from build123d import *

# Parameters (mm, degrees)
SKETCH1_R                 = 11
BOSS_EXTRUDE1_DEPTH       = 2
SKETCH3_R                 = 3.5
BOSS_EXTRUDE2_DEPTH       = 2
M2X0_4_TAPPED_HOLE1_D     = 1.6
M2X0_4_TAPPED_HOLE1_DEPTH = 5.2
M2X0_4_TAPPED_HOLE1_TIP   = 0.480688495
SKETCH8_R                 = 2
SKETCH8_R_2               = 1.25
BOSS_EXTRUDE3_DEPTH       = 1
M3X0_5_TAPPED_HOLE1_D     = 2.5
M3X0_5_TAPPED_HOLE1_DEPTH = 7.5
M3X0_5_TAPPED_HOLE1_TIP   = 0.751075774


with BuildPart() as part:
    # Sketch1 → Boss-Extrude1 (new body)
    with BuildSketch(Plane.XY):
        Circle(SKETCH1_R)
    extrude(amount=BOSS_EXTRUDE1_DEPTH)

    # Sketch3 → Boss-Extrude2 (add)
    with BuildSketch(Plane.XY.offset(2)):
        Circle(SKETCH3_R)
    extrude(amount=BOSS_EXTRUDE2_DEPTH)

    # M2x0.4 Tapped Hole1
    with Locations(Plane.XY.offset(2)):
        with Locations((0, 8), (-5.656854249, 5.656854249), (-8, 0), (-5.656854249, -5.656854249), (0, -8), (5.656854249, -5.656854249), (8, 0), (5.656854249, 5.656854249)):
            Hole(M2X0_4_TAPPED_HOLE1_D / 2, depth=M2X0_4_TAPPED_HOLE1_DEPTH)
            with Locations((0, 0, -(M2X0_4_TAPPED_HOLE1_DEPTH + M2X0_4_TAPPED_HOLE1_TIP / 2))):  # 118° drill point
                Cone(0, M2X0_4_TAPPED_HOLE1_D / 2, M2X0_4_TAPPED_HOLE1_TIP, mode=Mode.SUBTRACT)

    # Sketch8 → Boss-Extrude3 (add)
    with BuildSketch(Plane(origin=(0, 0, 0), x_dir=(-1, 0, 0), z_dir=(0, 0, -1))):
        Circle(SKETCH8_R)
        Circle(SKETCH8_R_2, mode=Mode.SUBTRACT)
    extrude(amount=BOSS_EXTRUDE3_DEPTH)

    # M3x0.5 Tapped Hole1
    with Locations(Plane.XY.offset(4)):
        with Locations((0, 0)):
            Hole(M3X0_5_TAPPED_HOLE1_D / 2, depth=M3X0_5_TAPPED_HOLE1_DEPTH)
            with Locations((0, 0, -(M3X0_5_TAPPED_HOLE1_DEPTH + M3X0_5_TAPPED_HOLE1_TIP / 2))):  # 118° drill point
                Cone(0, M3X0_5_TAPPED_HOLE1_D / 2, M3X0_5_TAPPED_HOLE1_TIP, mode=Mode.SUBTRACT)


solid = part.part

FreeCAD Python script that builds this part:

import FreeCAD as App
import Part
import Sketcher
Q = App.Units.Quantity

doc = App.newDocument("Part")
body = doc.addObject("PartDesign::Body", "Body")

# Sketch on XY plane
sketch1 = body.newObject("Sketcher::SketchObject", "Sketch")
sketch1.AttachmentSupport = (doc.getObject("XY_Plane"), [""])
sketch1.MapMode = "FlatFace"
sketch1.addGeometry(Part.Circle(App.Vector(0, 0, 0), App.Vector(0, 0, 1), 11), False)
sketch1.addConstraint([
    Sketcher.Constraint("Coincident", 0, 3, -1, 1),
    Sketcher.Constraint("Diameter", 0, Q("22 mm")),
])
pad1 = body.newObject("PartDesign::Pad", "Pad")
pad1.Profile = sketch1
pad1.Length = 2

# Sketch on XY plane
sketch2 = body.newObject("Sketcher::SketchObject", "Sketch001")
sketch2.AttachmentSupport = (doc.getObject("XY_Plane"), [""])
sketch2.MapMode = "FlatFace"
sketch2.AttachmentOffset = App.Placement(App.Vector(0, 0, 2), App.Rotation())
sketch2.addGeometry(Part.Circle(App.Vector(0, 0, 0), App.Vector(0, 0, 1), 3.5), False)
sketch2.addConstraint([
    Sketcher.Constraint("Coincident", 0, 3, -1, 1),
    Sketcher.Constraint("Diameter", 0, Q("7 mm")),
])
pad2 = body.newObject("PartDesign::Pad", "Pad001")
pad2.Profile = sketch2
pad2.Length = 2

# Sketch on XY plane
sketch3 = body.newObject("Sketcher::SketchObject", "Sketch002")
sketch3.AttachmentSupport = (doc.getObject("XY_Plane"), [""])
sketch3.MapMode = "FlatFace"
sketch3.AttachmentOffset = App.Placement(App.Vector(0, 0, 2), App.Rotation())
sketch3.addGeometry([
    Part.Circle(App.Vector(0, 8, 0), App.Vector(0, 0, 1), 0.8),  # 0
    Part.Circle(App.Vector(-5.7, 5.7, 0), App.Vector(0, 0, 1), 0.8),  # 1
    Part.Circle(App.Vector(-8, 0, 0), App.Vector(0, 0, 1), 0.8),  # 2
    Part.Circle(App.Vector(-5.7, -5.7, 0), App.Vector(0, 0, 1), 0.8),  # 3
    Part.Circle(App.Vector(0, -8, 0), App.Vector(0, 0, 1), 0.8),  # 4
    Part.Circle(App.Vector(5.7, -5.7, 0), App.Vector(0, 0, 1), 0.8),  # 5
    Part.Circle(App.Vector(8, 0, 0), App.Vector(0, 0, 1), 0.8),  # 6
    Part.Circle(App.Vector(5.7, 5.7, 0), App.Vector(0, 0, 1), 0.8),  # 7
], False)
sketch3.addConstraint([
    Sketcher.Constraint("Equal", 0, 1),
    Sketcher.Constraint("Equal", 1, 2),
    Sketcher.Constraint("Equal", 2, 3),
    Sketcher.Constraint("Equal", 3, 4),
    Sketcher.Constraint("Equal", 4, 5),
    Sketcher.Constraint("Equal", 5, 6),
    Sketcher.Constraint("Equal", 6, 7),
    Sketcher.Constraint("Symmetric", 0, 3, 4, 3, -1, 1),
    Sketcher.Constraint("Symmetric", 1, 3, 5, 3, -1, 1),
    Sketcher.Constraint("Symmetric", 2, 3, 6, 3, -1, 1),
    Sketcher.Constraint("Symmetric", 3, 3, 7, 3, -1, 1),
    Sketcher.Constraint("Symmetric", 3, 3, 5, 3, -2),
    Sketcher.Constraint("PointOnObject", 0, 3, -2),
    Sketcher.Constraint("PointOnObject", 2, 3, -1),
    Sketcher.Constraint("Diameter", 0, Q("1.6 mm")),
    Sketcher.Constraint("DistanceY", -1, 1, 0, 3, Q("8 mm")),
    Sketcher.Constraint("DistanceX", 2, 3, -1, 1, Q("8 mm")),
    Sketcher.Constraint("DistanceY", 3, 3, 1, 3, Q("11.313708 mm")),
    Sketcher.Constraint("DistanceX", 3, 3, 5, 3, Q("11.313708 mm")),
])
doc.recompute()
hole = body.newObject("PartDesign::Hole", "Hole")
hole.Profile = sketch3
hole.ThreadType = "None"
hole.Diameter = 1.6
hole.DepthType = "Dimension"
hole.Depth = 5.2
hole.DrillPoint = "Angled"
hole.DrillPointAngle = 118

# Sketch on XY plane
sketch4 = body.newObject("Sketcher::SketchObject", "Sketch003")
sketch4.AttachmentSupport = (doc.getObject("XY_Plane"), [""])
sketch4.MapMode = "FlatFace"
sketch4.addGeometry([
    Part.Circle(App.Vector(0, 0, 0), App.Vector(0, 0, 1), 2),
    Part.Circle(App.Vector(0, 0, 0), App.Vector(0, 0, 1), 1.2),
], False)
sketch4.addConstraint([
    Sketcher.Constraint("Coincident", 0, 3, -1, 1),
    Sketcher.Constraint("Coincident", 1, 3, -1, 1),
    Sketcher.Constraint("Diameter", 0, Q("4 mm")),
    Sketcher.Constraint("Diameter", 1, Q("2.5 mm")),
])
pad3 = body.newObject("PartDesign::Pad", "Pad002")
pad3.Profile = sketch4
pad3.Length = 1
pad3.Reversed = True

# Sketch on XY plane
sketch5 = body.newObject("Sketcher::SketchObject", "Sketch004")
sketch5.AttachmentSupport = (doc.getObject("XY_Plane"), [""])
sketch5.MapMode = "FlatFace"
sketch5.AttachmentOffset = App.Placement(App.Vector(0, 0, 4), App.Rotation())
sketch5.addGeometry(Part.Circle(App.Vector(0, 0, 0), App.Vector(0, 0, 1), 1.2), False)
sketch5.addConstraint([
    Sketcher.Constraint("Coincident", 0, 3, -1, 1),
    Sketcher.Constraint("Diameter", 0, Q("2.5 mm")),
])
doc.recompute()
hole2 = body.newObject("PartDesign::Hole", "Hole001")
hole2.Profile = sketch5
hole2.ThreadType = "None"
hole2.Diameter = 2.5
hole2.DepthType = "Dimension"
hole2.Depth = 7.5
hole2.DrillPoint = "Angled"
hole2.DrillPointAngle = 118

doc.recompute()
